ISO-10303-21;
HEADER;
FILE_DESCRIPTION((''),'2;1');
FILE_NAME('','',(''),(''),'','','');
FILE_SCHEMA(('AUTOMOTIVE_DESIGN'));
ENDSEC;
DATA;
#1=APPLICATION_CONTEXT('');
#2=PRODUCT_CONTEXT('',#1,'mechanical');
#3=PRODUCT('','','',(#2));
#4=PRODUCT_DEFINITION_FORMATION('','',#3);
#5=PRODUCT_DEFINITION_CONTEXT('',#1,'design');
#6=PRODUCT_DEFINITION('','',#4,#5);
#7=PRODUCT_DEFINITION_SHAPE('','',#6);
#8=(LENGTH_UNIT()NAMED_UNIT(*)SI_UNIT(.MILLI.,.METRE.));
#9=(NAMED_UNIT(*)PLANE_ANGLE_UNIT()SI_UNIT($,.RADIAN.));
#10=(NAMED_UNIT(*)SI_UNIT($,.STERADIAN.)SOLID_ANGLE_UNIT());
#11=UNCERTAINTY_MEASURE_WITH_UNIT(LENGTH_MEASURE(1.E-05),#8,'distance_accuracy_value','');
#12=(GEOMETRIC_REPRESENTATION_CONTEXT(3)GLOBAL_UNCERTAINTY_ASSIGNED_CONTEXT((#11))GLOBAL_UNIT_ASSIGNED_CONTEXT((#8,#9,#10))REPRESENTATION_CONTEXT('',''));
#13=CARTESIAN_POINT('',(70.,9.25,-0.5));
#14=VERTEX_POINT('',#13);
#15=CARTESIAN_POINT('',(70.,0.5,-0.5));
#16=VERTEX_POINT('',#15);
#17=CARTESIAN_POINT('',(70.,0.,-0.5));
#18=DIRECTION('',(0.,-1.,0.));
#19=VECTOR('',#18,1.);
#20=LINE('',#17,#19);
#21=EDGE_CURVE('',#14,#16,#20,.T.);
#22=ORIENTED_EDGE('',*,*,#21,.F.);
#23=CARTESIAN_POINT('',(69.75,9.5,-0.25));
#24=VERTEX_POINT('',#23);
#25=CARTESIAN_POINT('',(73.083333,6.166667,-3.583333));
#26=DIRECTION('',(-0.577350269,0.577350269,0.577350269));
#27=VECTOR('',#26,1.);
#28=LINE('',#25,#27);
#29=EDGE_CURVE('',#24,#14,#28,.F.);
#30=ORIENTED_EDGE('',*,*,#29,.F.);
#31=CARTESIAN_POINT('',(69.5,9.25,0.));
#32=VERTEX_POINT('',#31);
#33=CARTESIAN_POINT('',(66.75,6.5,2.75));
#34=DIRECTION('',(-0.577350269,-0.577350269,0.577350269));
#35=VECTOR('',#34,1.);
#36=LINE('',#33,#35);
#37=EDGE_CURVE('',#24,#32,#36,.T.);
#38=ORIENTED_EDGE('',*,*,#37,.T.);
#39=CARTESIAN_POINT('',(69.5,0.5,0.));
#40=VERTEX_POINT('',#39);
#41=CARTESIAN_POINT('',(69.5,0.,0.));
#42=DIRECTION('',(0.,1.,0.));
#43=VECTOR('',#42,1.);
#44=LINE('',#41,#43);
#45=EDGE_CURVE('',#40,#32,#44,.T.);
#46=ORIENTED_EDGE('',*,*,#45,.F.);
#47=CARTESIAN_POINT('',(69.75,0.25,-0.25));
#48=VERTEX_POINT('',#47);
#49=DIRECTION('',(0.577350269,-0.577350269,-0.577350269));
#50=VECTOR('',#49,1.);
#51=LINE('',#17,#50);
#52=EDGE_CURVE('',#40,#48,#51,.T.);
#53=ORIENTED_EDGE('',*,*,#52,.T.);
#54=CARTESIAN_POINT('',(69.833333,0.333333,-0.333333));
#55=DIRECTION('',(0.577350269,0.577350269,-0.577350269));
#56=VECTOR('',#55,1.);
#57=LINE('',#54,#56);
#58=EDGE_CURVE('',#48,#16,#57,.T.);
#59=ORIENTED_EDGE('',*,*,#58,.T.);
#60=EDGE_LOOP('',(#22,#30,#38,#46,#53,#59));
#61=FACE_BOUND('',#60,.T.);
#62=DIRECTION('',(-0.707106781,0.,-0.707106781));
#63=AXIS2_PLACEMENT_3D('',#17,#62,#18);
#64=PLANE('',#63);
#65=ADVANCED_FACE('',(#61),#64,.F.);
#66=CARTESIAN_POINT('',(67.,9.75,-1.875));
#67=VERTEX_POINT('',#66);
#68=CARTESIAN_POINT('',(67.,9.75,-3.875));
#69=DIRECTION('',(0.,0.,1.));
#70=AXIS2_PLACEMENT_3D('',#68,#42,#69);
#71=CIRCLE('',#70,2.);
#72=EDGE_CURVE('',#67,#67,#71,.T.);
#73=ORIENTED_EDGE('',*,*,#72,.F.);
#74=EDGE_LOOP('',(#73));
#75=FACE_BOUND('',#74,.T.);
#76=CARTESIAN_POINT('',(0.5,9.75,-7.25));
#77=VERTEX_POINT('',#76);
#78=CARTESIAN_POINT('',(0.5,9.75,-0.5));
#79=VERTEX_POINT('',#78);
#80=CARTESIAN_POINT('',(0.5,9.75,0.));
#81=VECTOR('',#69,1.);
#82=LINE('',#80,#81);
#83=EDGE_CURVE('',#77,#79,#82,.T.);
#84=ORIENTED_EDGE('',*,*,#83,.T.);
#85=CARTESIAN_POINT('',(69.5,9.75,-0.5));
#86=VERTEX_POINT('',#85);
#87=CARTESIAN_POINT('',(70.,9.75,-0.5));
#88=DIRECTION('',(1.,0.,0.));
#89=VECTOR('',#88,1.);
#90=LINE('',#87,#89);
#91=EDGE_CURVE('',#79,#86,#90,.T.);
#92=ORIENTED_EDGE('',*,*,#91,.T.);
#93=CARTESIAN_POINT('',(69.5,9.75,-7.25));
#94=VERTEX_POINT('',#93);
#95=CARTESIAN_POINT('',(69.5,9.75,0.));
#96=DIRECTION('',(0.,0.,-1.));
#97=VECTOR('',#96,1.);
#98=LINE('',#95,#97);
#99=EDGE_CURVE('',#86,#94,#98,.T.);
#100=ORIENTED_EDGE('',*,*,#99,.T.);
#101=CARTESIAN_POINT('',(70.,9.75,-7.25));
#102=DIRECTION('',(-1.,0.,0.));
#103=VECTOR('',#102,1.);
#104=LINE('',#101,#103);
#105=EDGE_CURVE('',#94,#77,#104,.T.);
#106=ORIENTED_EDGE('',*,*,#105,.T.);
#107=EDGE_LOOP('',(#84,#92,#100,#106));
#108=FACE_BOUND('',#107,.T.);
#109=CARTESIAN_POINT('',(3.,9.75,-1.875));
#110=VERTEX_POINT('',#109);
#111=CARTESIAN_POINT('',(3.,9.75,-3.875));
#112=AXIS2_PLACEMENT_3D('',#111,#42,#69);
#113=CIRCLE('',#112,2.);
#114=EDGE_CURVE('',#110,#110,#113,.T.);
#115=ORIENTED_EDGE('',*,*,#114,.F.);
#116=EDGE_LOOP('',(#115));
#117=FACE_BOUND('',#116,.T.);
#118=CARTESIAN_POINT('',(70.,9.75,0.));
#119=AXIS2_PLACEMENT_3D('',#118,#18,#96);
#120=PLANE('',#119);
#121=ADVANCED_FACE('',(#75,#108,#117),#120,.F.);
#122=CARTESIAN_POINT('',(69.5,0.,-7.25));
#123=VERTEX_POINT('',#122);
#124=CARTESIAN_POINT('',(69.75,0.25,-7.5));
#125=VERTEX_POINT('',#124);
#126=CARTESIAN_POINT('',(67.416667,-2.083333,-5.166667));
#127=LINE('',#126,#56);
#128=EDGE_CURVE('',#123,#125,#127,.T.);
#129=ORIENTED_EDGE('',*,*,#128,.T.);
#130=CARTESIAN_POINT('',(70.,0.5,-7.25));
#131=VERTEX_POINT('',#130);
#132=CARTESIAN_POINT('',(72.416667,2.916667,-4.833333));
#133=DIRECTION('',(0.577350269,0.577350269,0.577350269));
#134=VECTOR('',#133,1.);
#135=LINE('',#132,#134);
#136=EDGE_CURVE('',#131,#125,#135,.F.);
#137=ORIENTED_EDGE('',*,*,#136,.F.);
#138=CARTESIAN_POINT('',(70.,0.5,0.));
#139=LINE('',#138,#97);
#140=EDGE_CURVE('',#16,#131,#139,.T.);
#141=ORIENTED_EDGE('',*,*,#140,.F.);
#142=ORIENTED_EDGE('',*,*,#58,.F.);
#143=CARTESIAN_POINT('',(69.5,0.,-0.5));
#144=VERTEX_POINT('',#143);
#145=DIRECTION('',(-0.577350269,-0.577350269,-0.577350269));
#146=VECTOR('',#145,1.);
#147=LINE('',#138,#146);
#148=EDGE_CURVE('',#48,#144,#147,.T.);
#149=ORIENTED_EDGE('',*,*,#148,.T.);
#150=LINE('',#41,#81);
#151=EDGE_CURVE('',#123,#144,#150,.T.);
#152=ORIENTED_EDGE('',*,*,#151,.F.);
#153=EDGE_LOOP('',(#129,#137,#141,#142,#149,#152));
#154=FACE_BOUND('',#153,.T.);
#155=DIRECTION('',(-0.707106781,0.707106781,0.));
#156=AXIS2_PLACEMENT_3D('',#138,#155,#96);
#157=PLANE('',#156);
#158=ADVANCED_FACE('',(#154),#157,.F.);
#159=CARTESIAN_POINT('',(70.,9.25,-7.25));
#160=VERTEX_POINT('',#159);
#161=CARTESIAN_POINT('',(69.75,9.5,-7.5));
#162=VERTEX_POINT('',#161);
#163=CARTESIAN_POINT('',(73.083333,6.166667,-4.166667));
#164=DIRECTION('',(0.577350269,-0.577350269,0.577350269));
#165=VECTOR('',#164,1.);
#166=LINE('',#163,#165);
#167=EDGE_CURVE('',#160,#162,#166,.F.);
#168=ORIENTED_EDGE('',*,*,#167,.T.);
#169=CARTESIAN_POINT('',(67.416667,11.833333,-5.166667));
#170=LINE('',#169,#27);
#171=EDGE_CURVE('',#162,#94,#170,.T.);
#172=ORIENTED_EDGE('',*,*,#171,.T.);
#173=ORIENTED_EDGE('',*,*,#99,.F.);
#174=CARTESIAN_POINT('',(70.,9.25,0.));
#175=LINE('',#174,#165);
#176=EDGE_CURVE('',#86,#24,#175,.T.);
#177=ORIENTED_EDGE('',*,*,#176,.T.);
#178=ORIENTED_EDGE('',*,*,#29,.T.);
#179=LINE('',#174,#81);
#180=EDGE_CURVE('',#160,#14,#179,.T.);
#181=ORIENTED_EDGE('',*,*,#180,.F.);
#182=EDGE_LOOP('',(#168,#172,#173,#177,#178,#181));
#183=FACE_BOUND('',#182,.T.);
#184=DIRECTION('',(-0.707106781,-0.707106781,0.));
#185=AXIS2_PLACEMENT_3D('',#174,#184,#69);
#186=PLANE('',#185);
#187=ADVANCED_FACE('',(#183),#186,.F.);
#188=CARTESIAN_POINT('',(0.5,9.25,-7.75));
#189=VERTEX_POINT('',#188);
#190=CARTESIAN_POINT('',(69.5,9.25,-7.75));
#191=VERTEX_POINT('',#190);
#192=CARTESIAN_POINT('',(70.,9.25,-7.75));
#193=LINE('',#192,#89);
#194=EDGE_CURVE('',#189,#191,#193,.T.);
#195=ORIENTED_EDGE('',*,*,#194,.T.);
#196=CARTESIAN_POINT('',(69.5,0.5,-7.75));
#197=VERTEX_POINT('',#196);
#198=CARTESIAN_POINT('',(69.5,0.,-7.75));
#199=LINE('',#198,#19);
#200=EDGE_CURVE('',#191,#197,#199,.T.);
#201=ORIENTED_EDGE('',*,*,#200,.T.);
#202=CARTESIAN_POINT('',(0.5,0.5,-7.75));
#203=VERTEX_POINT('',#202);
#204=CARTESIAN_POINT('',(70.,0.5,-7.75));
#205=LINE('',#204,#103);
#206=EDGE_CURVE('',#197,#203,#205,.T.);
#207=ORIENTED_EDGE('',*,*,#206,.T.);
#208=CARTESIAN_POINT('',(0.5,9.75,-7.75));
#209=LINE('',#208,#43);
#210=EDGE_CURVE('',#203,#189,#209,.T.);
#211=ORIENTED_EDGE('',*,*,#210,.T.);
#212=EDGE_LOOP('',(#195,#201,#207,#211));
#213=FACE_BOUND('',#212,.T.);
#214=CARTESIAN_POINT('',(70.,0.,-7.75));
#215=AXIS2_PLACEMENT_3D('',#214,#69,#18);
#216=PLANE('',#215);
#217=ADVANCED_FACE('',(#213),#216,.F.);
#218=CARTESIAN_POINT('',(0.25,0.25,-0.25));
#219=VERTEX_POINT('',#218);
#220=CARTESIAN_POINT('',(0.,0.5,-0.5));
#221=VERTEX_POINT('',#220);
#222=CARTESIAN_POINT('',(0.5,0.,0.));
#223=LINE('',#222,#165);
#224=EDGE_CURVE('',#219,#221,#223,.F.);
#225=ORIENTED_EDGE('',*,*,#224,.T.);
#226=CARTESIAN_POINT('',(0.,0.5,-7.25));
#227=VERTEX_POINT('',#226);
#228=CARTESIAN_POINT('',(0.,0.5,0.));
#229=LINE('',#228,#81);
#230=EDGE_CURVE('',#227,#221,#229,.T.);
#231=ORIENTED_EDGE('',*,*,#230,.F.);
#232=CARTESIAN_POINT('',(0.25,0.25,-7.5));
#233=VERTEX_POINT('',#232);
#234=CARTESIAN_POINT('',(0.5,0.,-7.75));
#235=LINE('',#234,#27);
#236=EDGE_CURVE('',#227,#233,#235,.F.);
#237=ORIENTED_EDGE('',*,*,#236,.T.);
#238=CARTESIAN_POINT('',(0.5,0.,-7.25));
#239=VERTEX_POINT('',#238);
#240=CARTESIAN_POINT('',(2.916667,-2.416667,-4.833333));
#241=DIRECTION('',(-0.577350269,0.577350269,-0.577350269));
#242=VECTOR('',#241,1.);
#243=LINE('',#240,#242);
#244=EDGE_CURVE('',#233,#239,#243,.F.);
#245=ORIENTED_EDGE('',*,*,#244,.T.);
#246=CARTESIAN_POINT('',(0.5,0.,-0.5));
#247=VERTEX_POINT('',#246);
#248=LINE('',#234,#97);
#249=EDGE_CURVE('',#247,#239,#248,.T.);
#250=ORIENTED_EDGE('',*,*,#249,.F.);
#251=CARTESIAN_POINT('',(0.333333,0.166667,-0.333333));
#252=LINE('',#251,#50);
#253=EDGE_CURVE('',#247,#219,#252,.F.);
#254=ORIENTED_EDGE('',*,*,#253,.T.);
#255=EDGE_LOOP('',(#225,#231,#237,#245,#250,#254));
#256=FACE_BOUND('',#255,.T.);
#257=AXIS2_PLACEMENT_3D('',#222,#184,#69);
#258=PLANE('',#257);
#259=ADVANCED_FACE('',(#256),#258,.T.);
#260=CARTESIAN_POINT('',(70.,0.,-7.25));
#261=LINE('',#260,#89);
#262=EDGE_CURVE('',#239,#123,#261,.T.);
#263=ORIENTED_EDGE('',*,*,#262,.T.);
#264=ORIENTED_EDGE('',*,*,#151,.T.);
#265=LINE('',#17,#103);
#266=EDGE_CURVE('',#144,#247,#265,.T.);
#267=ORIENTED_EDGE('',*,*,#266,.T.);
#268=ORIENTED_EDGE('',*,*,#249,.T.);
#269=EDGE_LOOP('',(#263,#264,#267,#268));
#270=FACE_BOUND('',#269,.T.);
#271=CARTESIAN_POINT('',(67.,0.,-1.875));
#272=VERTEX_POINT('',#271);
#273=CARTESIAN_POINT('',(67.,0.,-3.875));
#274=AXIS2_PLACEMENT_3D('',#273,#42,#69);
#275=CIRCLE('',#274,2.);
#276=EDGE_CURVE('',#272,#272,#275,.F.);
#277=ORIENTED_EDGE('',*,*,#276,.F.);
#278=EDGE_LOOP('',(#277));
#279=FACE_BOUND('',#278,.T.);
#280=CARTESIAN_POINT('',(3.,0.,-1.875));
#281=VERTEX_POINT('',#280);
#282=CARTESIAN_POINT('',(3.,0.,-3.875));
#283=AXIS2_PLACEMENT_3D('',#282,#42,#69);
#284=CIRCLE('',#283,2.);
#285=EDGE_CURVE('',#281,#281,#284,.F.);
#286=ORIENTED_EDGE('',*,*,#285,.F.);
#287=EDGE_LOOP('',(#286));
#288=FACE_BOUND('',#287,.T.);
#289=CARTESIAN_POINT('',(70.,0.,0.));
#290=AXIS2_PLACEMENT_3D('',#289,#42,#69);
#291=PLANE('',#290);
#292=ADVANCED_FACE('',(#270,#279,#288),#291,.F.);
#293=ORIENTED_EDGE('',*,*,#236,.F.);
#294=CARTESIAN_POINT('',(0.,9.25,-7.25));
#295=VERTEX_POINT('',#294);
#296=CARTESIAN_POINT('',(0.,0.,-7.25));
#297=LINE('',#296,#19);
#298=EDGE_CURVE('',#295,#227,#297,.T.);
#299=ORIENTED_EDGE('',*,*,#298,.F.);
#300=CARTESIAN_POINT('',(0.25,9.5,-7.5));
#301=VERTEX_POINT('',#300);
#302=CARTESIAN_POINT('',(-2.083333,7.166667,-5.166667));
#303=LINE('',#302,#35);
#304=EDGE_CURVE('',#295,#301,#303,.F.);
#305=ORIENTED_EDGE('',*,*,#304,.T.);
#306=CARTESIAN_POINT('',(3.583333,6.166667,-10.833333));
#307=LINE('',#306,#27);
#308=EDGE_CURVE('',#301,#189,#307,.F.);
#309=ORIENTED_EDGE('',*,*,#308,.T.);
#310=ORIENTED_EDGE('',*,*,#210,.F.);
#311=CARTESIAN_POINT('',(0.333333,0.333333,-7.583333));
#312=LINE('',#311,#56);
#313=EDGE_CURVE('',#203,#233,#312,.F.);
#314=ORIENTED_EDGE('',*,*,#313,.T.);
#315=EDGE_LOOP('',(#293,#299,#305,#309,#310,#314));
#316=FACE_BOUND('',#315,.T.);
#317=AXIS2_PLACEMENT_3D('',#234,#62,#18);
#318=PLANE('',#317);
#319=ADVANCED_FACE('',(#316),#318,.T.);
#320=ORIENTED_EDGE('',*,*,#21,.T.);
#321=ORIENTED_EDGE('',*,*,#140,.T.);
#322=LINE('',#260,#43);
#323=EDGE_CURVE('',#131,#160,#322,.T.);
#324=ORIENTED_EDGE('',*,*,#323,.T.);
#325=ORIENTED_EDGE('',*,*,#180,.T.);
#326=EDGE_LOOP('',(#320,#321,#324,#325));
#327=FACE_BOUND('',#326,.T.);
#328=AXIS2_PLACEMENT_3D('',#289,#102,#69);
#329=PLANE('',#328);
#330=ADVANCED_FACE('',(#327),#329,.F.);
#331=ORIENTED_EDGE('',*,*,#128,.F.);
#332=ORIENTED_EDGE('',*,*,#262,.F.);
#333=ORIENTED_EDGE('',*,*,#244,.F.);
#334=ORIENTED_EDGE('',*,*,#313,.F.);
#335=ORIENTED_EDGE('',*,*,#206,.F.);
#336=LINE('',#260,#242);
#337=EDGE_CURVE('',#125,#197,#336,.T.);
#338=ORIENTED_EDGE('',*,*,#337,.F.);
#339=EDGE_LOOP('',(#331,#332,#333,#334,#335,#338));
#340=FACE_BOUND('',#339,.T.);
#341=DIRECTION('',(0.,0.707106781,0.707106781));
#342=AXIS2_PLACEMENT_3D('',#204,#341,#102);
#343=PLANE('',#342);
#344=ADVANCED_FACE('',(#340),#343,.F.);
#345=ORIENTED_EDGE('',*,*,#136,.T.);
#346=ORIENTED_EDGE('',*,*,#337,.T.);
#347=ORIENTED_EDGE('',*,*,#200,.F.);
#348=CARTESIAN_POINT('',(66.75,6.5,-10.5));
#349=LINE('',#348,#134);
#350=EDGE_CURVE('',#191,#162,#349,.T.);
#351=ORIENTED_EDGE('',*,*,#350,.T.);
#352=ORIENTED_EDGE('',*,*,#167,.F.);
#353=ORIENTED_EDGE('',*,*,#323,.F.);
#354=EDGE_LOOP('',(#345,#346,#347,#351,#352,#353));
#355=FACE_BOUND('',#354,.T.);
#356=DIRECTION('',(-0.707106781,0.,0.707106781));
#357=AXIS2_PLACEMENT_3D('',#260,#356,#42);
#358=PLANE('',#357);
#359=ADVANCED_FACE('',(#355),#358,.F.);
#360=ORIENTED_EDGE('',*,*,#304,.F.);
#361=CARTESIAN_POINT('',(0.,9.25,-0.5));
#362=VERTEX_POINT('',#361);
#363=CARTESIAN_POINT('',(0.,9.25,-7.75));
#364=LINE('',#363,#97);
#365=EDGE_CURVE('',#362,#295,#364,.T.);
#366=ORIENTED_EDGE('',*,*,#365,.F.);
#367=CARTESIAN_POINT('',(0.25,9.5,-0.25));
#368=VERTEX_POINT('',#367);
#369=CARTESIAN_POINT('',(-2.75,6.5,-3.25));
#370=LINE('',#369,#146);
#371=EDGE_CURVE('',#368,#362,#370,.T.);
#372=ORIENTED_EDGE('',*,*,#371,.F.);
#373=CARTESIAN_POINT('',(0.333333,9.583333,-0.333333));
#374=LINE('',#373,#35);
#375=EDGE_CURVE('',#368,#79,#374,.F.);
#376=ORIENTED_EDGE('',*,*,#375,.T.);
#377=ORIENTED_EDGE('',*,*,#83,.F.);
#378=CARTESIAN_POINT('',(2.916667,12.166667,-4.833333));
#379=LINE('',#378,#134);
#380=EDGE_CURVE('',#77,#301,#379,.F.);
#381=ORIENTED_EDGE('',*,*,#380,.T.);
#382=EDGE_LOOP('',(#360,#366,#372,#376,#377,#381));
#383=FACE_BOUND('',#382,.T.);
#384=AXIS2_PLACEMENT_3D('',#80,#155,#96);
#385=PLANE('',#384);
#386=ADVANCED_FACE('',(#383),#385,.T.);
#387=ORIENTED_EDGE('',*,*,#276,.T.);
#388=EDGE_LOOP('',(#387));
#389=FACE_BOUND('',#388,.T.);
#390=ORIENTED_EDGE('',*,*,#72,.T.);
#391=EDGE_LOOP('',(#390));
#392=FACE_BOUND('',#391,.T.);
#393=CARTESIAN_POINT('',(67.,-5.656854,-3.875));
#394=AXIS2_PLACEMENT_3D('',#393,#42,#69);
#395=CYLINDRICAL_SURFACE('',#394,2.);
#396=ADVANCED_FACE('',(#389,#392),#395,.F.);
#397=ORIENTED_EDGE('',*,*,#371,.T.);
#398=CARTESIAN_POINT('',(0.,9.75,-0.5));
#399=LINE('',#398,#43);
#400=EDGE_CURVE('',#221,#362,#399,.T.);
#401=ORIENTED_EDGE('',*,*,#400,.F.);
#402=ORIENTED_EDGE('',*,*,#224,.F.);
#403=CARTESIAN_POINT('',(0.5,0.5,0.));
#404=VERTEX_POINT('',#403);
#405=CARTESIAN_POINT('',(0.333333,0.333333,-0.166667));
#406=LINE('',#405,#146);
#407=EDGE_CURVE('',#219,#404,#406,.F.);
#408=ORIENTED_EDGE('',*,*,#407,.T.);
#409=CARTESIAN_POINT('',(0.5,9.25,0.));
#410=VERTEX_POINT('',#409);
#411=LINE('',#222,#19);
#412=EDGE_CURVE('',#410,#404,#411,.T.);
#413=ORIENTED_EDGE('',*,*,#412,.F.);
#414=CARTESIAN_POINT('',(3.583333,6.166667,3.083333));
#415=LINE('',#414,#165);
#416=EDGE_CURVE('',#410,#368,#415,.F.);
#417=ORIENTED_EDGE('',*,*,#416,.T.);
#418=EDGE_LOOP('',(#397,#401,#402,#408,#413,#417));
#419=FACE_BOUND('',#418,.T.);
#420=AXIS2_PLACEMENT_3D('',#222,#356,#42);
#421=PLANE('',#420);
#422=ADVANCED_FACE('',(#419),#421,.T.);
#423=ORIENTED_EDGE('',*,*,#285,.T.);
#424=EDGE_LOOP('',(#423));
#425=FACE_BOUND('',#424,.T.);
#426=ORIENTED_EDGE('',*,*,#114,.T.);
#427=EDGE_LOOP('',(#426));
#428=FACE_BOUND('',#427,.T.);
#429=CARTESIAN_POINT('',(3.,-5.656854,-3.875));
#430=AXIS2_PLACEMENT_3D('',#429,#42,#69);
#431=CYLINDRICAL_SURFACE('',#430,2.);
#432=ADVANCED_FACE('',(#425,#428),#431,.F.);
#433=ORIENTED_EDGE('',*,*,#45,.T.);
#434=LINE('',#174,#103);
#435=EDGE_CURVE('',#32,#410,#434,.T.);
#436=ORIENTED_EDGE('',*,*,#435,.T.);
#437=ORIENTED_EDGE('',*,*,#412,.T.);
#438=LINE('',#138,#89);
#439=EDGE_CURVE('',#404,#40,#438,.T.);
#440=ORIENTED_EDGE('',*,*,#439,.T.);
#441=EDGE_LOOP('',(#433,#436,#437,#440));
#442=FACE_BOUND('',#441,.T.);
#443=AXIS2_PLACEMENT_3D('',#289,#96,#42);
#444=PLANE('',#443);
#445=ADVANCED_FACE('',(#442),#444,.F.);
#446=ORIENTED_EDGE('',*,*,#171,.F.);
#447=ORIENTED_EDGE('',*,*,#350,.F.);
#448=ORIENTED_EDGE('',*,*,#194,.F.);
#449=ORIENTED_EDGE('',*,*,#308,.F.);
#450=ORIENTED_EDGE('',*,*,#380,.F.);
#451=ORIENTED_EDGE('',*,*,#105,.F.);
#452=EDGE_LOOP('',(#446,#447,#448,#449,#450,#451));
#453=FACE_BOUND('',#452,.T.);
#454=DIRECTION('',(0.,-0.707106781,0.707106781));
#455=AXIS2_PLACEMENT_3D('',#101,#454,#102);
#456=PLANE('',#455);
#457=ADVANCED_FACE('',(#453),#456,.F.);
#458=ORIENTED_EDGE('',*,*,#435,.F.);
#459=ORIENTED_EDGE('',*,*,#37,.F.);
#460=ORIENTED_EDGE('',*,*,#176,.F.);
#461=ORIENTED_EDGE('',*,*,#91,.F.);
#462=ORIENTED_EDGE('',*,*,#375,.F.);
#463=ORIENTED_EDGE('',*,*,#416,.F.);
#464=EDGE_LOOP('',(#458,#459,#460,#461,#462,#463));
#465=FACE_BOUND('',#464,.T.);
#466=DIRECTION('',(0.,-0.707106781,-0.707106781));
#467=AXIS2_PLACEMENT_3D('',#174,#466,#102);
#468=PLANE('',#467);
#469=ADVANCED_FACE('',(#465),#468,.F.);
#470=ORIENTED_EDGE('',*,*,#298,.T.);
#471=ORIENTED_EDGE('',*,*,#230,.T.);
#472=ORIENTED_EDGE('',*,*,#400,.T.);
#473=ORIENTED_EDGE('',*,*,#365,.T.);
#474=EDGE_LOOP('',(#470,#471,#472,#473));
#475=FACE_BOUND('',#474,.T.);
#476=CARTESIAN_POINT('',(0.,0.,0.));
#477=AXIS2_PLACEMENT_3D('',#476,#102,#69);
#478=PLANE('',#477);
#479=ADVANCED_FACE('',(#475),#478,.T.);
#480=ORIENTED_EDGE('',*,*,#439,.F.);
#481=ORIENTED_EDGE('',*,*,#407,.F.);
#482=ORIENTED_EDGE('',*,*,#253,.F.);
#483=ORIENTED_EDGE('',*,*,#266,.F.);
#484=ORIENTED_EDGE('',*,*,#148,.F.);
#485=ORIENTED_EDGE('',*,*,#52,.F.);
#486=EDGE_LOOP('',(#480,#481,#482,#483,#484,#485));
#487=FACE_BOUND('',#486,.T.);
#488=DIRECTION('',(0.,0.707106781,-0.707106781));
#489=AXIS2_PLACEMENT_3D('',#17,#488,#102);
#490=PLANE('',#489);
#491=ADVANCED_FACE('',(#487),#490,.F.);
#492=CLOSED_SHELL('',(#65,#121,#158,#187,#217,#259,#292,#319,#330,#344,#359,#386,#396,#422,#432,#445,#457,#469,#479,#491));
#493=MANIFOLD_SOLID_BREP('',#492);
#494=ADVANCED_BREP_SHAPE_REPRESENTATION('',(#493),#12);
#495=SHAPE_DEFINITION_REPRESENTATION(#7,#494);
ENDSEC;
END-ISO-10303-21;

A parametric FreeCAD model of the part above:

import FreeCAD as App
import Part
import Sketcher

V = App.Vector
Q = App.Units.Quantity


def edges_at(feature, points):
    """Names of the edges that pass closest to the given points."""
    edges = feature.Shape.Edges
    near = lambda p: min(range(len(edges)), key=lambda i: edges[i].distToShape(Part.Vertex(*p))[0])
    return sorted({f"Edge{near(p) + 1}" for p in points})

doc = App.newDocument("Part")
body = doc.addObject("PartDesign::Body", "Body")

# Sketch on YZ plane
sketch1 = body.newObject("Sketcher::SketchObject", "Sketch")
sketch1.AttachmentSupport = (doc.getObject("YZ_Plane"), [""])
sketch1.MapMode = "FlatFace"
sketch1.addGeometry(Part.LineSegment(V(10, 0, 0), V(0, 0, 0)), False)
sketch1.addGeometry(Part.LineSegment(V(0, 0, 0), V(0, -8, 0)), False)
sketch1.addGeometry(Part.LineSegment(V(0, -8, 0), V(10, -8, 0)), False)
sketch1.addGeometry(Part.LineSegment(V(10, -8, 0), V(10, 0, 0)), False)
sketch1.addConstraint(Sketcher.Constraint("Coincident", 0, 2, 1, 1))
sketch1.addConstraint(Sketcher.Constraint("Coincident", 1, 2, 2, 1))
sketch1.addConstraint(Sketcher.Constraint("Coincident", 2, 2, 3, 1))
sketch1.addConstraint(Sketcher.Constraint("Coincident", 3, 2, 0, 1))
sketch1.addConstraint(Sketcher.Constraint("Horizontal", 0))
sketch1.addConstraint(Sketcher.Constraint("Vertical", 1))
sketch1.addConstraint(Sketcher.Constraint("Horizontal", 2))
sketch1.addConstraint(Sketcher.Constraint("Vertical", 3))
sketch1.addConstraint(Sketcher.Constraint("Coincident", 0, 2, -1, 1))
sketch1.addConstraint(Sketcher.Constraint("DistanceX", 0, 2, 0, 1, Q("9.75 mm")))
sketch1.addConstraint(Sketcher.Constraint("DistanceY", 1, 2, 1, 1, Q("7.75 mm")))
pad1 = body.newObject("PartDesign::Pad", "Pad")
pad1.Profile = sketch1
pad1.Length = 70

# Sketch on XZ plane
sketch2 = body.newObject("Sketcher::SketchObject", "Sketch001")
sketch2.AttachmentSupport = (doc.getObject("XZ_Plane"), [""])
sketch2.MapMode = "FlatFace"
sketch2.AttachmentOffset = App.Placement(V(0, 0, -9.75), App.Rotation())
sketch2.addGeometry(Part.Circle(V(3, -3.9, 0), V(0, 0, 1), 2), False)
sketch2.addGeometry(Part.Circle(V(67, -3.9, 0), V(0, 0, 1), 2), False)
sketch2.addConstraint(Sketcher.Constraint("Equal", 0, 1))
sketch2.addConstraint(Sketcher.Constraint("Horizontal", 0, 3, 1, 3))
sketch2.addConstraint(Sketcher.Constraint("Diameter", 0, Q("4 mm")))
sketch2.addConstraint(Sketcher.Constraint("DistanceX", -1, 1, 0, 3, Q("3 mm")))
sketch2.addConstraint(Sketcher.Constraint("DistanceX", -1, 1, 1, 3, Q("67 mm")))
sketch2.addConstraint(Sketcher.Constraint("DistanceY", 0, 3, -1, 1, Q("3.875 mm")))
pocket1 = body.newObject("PartDesign::Pocket", "Pocket")
pocket1.Profile = sketch2
pocket1.Length = 9.75
pocket1.Reversed = True
doc.recompute()

chamfer = body.newObject("PartDesign::Chamfer", "Chamfer")
chamfer.Base = (pocket1, edges_at(pocket1, [
    (70, 4.875, -7.75),
    (70, 9.75, -3.875),
    (70, 4.875, 0),
    (0, 9.75, -3.875),
    (0, 4.875, -7.75),
    (0, 0, -3.875),
    (0, 4.875, 0),
    (70, 0, -3.875),
]))
chamfer.Size = 0.5
doc.recompute()

chamfer2 = body.newObject("PartDesign::Chamfer", "Chamfer001")
chamfer2.Base = (chamfer, edges_at(chamfer, [
    (35, 0, -7.75),
    (35, 0, 0),
    (35, 9.75, -7.75),
    (35, 9.75, 0),
]))
chamfer2.Size = 0.5

doc.recompute()
